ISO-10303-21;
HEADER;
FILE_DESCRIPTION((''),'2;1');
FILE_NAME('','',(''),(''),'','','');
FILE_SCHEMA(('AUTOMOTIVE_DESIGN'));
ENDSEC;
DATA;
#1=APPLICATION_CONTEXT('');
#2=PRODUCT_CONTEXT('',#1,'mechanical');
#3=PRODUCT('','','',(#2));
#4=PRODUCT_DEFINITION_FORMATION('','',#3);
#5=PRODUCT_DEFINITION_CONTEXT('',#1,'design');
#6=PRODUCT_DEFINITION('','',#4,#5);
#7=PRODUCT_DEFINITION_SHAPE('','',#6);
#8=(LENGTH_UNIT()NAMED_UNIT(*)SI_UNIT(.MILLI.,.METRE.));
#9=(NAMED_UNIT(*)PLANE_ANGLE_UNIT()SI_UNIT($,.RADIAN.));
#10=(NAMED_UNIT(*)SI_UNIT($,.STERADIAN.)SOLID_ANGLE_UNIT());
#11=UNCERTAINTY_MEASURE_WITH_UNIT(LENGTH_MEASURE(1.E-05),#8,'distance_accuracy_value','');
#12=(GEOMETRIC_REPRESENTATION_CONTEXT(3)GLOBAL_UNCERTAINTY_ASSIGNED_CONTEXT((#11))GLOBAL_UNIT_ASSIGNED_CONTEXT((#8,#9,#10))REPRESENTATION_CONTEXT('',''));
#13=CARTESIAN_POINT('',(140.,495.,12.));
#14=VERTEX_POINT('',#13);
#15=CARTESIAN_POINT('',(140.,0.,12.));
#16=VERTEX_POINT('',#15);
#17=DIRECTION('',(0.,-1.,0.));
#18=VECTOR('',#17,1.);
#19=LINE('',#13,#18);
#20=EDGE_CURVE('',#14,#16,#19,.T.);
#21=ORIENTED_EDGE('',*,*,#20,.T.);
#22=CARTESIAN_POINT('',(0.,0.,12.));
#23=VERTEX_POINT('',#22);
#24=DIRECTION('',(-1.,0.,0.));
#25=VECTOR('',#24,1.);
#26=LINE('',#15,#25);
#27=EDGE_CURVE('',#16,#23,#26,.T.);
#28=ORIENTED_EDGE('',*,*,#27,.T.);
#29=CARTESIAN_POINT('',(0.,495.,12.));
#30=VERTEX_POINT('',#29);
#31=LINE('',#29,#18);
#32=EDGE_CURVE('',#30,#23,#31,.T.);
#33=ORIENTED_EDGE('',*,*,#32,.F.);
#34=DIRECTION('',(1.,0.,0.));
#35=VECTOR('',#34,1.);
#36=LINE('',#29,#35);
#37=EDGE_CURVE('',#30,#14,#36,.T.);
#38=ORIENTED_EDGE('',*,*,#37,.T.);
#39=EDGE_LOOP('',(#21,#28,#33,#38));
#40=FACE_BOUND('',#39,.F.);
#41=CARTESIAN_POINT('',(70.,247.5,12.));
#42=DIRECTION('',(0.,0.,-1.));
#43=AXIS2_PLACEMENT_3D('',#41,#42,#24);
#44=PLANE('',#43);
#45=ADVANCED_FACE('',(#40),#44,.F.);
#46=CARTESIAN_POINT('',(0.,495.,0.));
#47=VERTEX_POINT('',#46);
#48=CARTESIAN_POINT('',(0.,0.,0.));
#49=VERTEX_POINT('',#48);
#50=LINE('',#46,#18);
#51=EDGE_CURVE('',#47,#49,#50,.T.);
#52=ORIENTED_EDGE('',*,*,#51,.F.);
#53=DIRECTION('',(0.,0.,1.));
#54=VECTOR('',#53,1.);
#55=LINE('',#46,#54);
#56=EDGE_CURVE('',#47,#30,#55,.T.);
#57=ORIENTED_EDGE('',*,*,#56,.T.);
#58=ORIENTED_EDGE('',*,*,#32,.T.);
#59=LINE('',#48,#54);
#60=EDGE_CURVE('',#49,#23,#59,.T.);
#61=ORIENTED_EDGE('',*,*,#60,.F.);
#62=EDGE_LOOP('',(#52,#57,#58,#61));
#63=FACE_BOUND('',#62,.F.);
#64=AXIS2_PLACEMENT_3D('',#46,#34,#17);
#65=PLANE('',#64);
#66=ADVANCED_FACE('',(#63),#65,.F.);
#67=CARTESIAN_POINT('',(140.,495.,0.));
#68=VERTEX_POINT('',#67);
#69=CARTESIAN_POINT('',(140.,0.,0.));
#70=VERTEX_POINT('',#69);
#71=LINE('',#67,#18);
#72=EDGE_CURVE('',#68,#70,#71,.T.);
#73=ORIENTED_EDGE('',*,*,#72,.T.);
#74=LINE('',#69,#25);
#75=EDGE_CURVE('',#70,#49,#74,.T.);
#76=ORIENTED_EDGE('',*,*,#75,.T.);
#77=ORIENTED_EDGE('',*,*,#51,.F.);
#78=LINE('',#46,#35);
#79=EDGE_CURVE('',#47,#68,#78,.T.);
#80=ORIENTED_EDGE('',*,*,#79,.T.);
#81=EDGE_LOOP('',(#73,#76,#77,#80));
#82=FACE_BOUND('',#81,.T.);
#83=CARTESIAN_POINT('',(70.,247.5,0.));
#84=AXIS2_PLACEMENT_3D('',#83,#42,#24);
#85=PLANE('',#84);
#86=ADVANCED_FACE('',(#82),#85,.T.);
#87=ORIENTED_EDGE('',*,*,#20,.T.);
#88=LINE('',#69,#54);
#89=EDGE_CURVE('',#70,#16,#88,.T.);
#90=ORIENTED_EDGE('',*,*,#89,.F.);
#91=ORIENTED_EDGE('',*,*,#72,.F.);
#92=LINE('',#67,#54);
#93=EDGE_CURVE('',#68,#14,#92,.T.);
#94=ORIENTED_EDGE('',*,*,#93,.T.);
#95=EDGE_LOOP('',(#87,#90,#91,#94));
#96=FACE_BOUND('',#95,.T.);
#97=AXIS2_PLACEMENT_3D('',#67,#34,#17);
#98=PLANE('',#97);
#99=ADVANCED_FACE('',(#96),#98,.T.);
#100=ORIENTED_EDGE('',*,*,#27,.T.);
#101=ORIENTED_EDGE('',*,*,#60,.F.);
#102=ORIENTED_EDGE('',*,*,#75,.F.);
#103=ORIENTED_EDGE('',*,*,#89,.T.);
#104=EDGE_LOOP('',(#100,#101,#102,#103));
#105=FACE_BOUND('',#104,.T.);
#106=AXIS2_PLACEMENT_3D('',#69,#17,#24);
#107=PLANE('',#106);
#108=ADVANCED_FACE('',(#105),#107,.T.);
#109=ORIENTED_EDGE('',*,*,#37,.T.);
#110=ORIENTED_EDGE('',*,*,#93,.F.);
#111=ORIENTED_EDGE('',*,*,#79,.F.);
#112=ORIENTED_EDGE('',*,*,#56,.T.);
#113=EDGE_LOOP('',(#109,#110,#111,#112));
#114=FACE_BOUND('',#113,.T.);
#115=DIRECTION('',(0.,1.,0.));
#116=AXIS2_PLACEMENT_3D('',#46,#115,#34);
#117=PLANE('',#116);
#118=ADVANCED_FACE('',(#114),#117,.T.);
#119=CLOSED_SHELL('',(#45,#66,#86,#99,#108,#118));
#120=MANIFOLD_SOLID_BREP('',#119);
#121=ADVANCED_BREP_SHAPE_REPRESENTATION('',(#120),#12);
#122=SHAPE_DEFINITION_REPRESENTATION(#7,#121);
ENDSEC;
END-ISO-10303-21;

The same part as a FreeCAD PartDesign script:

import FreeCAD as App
import Part
import Sketcher
from FreeCAD import Vector
Q = App.Units.Quantity


def add_polygon(sketch, points):
    """Adds a closed chain of lines whose ends are joined by coincident constraints."""
    first, n = sketch.GeometryCount, len(points)
    for a, b in zip(points, points[1:] + points[:1]):
        sketch.addGeometry(Part.LineSegment(App.Vector(*a, 0), App.Vector(*b, 0)), False)
    for i in range(n):
        sketch.addConstraint(Sketcher.Constraint("Coincident", first + i, 2, first + (i + 1) % n, 1))

doc = App.newDocument("Part")
params = doc.addObject("Spreadsheet::Sheet", "Params")
for row, (alias, value) in enumerate([
    ("sketch1_width", "140 mm"),
    ("sketch1_height", "495 mm"),
    ("pad1_length", "12 mm"),
], start=1):
    params.set(f"A{row}", alias)
    params.set(f"B{row}", "=" + value)
    params.setAlias(f"B{row}", alias)

body = doc.addObject("PartDesign::Body", "Body")

# Sketch on XY plane
sketch1 = body.newObject("Sketcher::SketchObject", "Sketch")
sketch1.AttachmentSupport = (doc.getObject("XY_Plane"), [""])
sketch1.MapMode = "FlatFace"
add_polygon(sketch1, [(140, 495), (0, 495), (0, 0), (140, 0)])  # lines 0-3
sketch1.addConstraint([
    Sketcher.Constraint("Horizontal", 0),
    Sketcher.Constraint("Vertical", 1),
    Sketcher.Constraint("Horizontal", 2),
    Sketcher.Constraint("Vertical", 3),
    Sketcher.Constraint("Coincident", 1, 2, -1, 1),
    Sketcher.Constraint("DistanceX", 0, 2, 0, 1, Q("140 mm")),
    Sketcher.Constraint("DistanceY", 1, 2, 1, 1, Q("495 mm")),
])
sketch1.setExpression("Constraints[9]", "Params.sketch1_width")
sketch1.setExpression("Constraints[10]", "Params.sketch1_height")
pad1 = body.newObject("PartDesign::Pad", "Pad")
pad1.Profile = sketch1
pad1.setExpression("Length", "Params.pad1_length")

doc.recompute()
